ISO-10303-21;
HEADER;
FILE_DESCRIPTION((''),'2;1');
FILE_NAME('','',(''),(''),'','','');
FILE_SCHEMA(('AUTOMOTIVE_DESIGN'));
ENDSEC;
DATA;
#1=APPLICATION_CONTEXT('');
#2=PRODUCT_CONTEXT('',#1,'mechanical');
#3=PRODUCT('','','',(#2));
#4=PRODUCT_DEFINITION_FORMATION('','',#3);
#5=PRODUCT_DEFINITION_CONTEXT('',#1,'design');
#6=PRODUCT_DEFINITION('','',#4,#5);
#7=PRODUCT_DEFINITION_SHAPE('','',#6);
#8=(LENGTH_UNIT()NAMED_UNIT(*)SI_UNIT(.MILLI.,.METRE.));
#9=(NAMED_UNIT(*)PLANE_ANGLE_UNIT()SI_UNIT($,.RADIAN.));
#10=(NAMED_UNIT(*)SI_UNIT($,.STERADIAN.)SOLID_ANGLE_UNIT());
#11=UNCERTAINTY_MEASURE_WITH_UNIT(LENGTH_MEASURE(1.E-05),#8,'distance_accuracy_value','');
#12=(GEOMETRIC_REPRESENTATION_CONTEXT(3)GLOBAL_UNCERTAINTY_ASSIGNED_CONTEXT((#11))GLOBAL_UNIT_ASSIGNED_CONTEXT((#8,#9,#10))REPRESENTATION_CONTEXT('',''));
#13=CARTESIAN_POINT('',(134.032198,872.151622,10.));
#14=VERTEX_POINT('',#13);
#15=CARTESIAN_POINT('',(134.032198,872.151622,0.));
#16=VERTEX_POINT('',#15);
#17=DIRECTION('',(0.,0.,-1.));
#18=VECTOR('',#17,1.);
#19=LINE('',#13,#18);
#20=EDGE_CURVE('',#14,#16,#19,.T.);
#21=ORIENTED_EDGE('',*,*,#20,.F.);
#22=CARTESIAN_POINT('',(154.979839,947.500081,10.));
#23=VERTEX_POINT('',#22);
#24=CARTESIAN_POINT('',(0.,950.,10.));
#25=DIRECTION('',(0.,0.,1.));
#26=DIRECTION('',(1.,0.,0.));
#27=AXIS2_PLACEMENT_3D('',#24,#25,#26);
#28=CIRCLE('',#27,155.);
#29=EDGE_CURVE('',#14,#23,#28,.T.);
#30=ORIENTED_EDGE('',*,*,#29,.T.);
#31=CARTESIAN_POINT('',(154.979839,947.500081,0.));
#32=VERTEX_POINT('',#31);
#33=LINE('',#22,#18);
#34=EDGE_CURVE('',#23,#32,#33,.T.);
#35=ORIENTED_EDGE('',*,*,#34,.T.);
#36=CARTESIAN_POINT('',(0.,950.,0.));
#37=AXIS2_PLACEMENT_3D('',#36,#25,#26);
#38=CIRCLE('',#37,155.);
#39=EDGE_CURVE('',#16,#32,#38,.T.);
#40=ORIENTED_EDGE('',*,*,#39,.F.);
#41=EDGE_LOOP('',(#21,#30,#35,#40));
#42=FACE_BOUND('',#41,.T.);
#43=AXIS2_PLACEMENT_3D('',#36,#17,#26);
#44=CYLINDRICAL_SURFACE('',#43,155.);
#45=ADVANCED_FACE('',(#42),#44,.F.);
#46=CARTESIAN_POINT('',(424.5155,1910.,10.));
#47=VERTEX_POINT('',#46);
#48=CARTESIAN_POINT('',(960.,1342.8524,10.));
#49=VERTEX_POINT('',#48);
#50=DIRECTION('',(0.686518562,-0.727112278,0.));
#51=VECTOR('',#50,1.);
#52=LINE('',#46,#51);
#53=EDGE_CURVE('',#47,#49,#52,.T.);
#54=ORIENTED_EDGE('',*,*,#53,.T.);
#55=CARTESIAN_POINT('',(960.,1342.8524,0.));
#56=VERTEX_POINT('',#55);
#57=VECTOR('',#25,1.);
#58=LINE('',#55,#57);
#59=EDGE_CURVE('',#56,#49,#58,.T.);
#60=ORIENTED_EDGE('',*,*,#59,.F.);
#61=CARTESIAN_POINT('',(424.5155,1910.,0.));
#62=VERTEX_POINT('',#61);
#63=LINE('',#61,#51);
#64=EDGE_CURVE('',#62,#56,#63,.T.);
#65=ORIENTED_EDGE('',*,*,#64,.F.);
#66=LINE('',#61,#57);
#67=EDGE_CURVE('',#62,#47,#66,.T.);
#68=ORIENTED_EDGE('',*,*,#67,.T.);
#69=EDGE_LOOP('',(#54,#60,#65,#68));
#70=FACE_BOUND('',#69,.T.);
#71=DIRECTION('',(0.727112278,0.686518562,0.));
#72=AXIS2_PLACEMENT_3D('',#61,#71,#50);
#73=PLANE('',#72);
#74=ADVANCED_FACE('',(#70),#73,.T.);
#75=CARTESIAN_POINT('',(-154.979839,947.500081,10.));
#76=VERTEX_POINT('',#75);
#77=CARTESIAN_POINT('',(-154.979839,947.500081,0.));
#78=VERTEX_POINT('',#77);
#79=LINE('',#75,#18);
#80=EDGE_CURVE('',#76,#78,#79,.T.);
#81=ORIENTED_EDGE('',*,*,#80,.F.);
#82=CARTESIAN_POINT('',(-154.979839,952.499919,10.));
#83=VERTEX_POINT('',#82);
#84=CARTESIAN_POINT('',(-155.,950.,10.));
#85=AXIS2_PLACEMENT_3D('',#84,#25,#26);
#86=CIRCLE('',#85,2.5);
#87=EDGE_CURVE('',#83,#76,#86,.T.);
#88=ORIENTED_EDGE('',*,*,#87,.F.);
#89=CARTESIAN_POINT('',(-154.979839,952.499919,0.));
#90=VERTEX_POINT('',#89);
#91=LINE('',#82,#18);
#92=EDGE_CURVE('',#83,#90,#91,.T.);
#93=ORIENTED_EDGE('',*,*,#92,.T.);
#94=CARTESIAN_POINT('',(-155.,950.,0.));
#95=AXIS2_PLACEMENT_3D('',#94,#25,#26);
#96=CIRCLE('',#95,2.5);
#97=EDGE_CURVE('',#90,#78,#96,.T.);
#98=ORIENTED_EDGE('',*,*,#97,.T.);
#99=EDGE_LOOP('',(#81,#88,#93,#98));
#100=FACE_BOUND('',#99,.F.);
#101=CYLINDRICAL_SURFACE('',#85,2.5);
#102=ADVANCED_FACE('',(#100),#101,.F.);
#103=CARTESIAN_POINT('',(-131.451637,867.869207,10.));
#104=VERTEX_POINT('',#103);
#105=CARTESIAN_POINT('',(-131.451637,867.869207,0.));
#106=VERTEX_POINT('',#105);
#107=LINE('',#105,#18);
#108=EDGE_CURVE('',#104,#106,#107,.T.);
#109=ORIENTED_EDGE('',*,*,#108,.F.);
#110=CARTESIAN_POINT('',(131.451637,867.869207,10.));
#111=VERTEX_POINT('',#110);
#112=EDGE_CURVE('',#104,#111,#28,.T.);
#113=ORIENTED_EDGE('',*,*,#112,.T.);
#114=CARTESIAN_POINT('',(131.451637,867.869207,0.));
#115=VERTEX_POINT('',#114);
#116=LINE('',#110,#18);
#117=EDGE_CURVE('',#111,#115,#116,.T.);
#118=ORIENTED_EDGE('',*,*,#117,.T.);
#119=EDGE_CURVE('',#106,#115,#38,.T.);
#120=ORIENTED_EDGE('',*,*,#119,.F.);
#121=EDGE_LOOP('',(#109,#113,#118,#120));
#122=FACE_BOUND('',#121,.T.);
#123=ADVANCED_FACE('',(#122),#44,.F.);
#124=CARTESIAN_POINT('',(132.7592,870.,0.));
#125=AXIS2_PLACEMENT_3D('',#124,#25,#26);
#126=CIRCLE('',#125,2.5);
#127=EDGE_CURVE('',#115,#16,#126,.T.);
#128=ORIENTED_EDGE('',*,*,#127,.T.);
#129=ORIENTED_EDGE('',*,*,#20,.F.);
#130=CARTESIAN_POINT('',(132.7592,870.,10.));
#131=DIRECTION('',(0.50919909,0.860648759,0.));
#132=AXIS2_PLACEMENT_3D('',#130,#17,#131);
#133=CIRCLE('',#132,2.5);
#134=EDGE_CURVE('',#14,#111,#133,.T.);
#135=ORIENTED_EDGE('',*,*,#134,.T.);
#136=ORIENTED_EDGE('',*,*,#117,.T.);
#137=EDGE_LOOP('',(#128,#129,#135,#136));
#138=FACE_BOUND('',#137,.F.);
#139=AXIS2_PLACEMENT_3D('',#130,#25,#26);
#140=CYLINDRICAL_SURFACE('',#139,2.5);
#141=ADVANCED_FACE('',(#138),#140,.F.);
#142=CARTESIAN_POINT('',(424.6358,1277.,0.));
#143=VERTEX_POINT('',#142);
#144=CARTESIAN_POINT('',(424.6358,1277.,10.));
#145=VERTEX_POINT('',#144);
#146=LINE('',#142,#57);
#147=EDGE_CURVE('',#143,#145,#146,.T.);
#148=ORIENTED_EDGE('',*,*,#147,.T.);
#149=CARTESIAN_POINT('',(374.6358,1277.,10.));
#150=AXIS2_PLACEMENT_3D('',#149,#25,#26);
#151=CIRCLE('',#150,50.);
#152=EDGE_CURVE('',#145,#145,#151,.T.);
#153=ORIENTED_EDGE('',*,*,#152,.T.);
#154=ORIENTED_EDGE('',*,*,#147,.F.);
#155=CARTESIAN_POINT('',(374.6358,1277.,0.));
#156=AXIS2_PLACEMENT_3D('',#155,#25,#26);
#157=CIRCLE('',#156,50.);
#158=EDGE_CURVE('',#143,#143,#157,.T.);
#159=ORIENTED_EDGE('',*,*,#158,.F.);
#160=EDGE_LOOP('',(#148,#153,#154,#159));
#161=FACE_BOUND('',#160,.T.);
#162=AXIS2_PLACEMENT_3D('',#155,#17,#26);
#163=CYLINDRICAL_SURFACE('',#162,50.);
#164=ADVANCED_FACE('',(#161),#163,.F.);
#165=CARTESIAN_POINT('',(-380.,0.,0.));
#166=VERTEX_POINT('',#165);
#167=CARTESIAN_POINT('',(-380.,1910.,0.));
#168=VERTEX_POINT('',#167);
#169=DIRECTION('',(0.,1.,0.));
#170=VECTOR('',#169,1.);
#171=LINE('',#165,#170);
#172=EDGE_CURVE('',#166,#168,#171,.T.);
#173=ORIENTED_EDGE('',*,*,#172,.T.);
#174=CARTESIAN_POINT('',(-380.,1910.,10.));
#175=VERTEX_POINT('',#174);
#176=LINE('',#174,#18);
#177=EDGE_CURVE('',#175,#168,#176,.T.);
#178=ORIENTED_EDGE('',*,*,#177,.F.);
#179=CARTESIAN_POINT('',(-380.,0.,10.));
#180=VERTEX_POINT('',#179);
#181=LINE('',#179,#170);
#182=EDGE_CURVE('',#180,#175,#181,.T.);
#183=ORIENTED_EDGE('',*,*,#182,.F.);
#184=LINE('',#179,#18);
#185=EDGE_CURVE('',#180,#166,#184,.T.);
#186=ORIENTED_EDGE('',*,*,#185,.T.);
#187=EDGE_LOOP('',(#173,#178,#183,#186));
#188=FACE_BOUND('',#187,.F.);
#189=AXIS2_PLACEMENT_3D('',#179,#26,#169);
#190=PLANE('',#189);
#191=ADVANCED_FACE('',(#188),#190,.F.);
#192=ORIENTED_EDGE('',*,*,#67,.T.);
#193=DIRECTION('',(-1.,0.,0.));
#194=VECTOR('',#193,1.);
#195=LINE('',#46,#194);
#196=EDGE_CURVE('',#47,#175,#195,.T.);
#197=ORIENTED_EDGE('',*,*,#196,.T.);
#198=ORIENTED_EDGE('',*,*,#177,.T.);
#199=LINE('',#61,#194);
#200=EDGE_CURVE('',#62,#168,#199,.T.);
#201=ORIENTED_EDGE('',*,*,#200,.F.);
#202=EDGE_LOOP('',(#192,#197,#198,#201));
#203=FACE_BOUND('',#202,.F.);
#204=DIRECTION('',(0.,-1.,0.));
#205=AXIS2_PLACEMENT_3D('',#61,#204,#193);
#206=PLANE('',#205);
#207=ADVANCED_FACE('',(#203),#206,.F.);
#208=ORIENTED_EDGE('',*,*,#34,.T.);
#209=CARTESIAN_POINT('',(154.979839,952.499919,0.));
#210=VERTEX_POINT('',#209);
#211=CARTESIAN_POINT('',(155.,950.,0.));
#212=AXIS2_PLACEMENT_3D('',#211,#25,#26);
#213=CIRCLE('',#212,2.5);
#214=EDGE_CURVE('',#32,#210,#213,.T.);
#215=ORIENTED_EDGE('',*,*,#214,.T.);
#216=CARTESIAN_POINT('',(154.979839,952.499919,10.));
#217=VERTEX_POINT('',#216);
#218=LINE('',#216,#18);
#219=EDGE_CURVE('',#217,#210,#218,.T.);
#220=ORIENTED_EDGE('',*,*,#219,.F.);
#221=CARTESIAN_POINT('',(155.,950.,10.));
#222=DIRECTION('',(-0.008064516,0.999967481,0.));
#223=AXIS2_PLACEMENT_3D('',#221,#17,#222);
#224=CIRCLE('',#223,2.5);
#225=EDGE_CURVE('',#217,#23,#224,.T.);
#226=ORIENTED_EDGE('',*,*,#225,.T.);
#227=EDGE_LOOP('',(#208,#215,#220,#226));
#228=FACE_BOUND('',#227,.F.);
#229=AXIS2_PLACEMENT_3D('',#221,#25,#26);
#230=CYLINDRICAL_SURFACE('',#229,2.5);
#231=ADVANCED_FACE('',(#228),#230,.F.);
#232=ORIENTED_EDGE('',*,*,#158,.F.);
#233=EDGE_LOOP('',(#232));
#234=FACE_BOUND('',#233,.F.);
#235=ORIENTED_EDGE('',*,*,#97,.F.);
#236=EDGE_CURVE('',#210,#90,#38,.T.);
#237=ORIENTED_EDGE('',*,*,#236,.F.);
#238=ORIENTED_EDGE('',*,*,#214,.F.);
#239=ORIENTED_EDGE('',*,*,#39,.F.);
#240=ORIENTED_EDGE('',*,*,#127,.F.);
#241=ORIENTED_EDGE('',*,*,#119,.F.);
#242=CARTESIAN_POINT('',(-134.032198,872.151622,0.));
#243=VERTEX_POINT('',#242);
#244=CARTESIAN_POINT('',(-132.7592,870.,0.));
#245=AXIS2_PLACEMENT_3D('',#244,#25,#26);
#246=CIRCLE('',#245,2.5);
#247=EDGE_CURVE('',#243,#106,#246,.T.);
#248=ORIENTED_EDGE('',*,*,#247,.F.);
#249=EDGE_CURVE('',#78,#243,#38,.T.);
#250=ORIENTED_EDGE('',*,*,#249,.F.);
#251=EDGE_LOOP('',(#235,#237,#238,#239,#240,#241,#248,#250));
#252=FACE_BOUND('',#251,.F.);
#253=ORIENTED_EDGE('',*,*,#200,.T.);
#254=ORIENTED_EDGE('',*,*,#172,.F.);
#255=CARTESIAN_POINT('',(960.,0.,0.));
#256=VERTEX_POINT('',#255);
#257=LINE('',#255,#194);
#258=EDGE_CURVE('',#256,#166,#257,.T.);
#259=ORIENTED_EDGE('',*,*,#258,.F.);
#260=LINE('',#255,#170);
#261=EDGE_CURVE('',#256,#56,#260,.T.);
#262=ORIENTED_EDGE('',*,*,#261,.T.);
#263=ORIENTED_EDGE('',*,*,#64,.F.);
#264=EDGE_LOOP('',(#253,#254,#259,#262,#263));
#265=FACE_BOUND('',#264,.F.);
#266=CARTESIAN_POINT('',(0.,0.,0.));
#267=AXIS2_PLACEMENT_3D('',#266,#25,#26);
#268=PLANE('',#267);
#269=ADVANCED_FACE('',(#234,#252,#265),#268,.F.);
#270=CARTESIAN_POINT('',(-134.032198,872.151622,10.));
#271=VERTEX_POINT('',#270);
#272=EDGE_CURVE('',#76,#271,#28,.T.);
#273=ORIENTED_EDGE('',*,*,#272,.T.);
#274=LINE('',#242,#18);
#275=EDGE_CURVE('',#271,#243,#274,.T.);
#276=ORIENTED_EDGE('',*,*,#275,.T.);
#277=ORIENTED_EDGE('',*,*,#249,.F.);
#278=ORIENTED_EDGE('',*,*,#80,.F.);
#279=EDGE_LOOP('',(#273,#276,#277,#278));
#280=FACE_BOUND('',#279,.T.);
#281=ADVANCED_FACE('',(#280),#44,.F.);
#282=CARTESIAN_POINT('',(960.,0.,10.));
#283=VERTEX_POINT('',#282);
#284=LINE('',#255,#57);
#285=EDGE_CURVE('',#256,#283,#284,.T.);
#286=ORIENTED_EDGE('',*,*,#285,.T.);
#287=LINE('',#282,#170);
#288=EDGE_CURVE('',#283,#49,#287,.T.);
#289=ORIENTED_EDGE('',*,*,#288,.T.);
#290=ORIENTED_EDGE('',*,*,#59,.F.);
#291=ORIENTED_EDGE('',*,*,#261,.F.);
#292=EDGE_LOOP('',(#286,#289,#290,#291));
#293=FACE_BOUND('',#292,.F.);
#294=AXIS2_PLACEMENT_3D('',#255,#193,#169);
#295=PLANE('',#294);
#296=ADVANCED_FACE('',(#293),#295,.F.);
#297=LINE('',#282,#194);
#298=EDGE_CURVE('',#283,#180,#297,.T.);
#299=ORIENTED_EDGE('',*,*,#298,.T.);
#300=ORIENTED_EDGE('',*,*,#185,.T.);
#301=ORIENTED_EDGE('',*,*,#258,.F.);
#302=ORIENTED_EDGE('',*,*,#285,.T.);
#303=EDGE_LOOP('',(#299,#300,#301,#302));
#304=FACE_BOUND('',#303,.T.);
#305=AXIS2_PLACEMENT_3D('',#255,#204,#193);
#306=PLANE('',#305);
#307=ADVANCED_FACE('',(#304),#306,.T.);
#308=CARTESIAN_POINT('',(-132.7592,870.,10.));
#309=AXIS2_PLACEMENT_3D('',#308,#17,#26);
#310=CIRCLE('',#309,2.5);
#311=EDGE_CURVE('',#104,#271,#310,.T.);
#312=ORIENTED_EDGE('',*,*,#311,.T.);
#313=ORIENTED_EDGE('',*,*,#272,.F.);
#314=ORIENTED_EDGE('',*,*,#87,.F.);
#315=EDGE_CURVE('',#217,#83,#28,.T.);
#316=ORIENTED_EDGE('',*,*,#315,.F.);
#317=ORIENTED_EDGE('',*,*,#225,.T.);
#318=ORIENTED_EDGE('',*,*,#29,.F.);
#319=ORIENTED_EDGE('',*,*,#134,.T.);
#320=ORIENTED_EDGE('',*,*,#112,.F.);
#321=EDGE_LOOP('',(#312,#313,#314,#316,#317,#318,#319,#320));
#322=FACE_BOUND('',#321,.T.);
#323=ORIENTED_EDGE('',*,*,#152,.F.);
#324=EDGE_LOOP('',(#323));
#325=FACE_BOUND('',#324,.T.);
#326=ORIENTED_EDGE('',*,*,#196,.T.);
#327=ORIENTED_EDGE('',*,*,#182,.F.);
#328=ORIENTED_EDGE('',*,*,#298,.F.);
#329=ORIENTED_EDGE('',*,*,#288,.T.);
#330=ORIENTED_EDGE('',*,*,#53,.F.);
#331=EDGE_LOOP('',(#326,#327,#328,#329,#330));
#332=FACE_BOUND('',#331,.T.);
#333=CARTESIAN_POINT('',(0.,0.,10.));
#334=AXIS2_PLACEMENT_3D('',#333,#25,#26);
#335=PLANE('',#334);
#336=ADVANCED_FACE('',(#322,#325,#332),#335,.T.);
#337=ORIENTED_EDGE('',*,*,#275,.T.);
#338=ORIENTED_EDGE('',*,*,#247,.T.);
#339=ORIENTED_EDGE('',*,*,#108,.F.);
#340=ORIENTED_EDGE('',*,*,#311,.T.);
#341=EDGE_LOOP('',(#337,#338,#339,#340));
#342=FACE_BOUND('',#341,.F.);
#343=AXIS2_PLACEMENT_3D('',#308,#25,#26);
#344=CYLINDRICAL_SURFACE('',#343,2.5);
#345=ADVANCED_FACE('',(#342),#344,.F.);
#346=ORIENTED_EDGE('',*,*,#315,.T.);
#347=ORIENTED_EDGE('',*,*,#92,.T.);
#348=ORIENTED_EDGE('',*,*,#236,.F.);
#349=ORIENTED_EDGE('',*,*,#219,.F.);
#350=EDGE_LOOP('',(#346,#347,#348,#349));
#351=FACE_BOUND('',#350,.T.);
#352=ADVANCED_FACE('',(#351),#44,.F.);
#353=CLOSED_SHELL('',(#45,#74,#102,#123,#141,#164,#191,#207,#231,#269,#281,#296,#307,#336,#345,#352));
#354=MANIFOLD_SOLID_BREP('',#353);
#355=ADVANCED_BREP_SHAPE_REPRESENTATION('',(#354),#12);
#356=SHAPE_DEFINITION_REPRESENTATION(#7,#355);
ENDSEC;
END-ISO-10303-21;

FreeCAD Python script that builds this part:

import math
import FreeCAD as App
import Part
import Sketcher
from FreeCAD import Vector

doc = App.newDocument("Part")
params = doc.addObject("Spreadsheet::Sheet", "Params")
for row, (alias, value) in enumerate([
    ("sketch1_diameter", "400 mm"),
    ("sketch1_diameter2", "76 mm"),
    ("sketch1_diameter3", "310 mm"),
    ("sketch1_diameter4", "100 mm"),
    ("sketch1_width", "840 mm"),
    ("pad1_length", "10 mm"),
    ("sketch2_diameter", "5 mm"),
    ("sketch2_radius", "155 mm"),
    ("sketch3_diameter", "400 mm"),
    ("sketch3_diameter2", "76 mm"),
    ("sketch3_width", "800 mm"),
    ("sketch3_height", "1910 mm"),
    ("sketch3_height2", "1150 mm"),
], start=1):
    params.set(f"A{row}", alias)
    params.set(f"B{row}", "=" + value)
    params.setAlias(f"B{row}", alias)

body = doc.addObject("PartDesign::Body", "Body")

# Sketch on XY plane
sketch1 = body.newObject("Sketcher::SketchObject", "Sketch")
sketch1.AttachmentSupport = (doc.getObject("XY_Plane"), [""])
sketch1.MapMode = "FlatFace"
sketch1.addGeometry(Part.LineSegment(Vector(960, 1343, 0), Vector(425, 1910, 0)), False)
sketch1.addGeometry(Part.LineSegment(Vector(425, 1910, 0), Vector(-415, 1910, 0)), False)
sketch1.addGeometry(Part.LineSegment(Vector(-415, 1910, 0), Vector(-1180, 1150, 0)), False)
sketch1.addGeometry(Part.LineSegment(Vector(-1180, 1150, 0), Vector(-1180, 0, 0)), False)
sketch1.addGeometry(Part.LineSegment(Vector(-1180, 0, 0), Vector(960, 0, 0)), False)
sketch1.addGeometry(Part.LineSegment(Vector(960, 0, 0), Vector(960, 1343, 0)), False)
sketch1.addGeometry(Part.Circle(Vector(-960, 220, 0), Vector(0, 0, 1), 200), False)
sketch1.addGeometry(Part.Circle(Vector(-588, 255, 0), Vector(0, 0, 1), 38), False)
sketch1.addGeometry(Part.Circle(Vector(0, 950, 0), Vector(0, 0, 1), 155), False)
sketch1.addGeometry(Part.Circle(Vector(375, 1277, 0), Vector(0, 0, 1), 50), False)
sketch1.addConstraint(Sketcher.Constraint("Coincident", 0, 2, 1, 1))
sketch1.addConstraint(Sketcher.Constraint("Coincident", 1, 2, 2, 1))
sketch1.addConstraint(Sketcher.Constraint("Coincident", 2, 2, 3, 1))
sketch1.addConstraint(Sketcher.Constraint("Coincident", 3, 2, 4, 1))
sketch1.addConstraint(Sketcher.Constraint("Coincident", 4, 2, 5, 1))
sketch1.addConstraint(Sketcher.Constraint("Coincident", 5, 2, 0, 1))
sketch1.addConstraint(Sketcher.Constraint("Horizontal", 1))
sketch1.addConstraint(Sketcher.Constraint("Vertical", 3))
sketch1.addConstraint(Sketcher.Constraint("Horizontal", 4))
sketch1.addConstraint(Sketcher.Constraint("Vertical", 5))
sketch1.addConstraint(Sketcher.Constraint("PointOnObject", 8, 3, -2))
sketch1.addConstraint(Sketcher.Constraint("PointOnObject", 3, 2, -1))
sketch1.addConstraint(Sketcher.Constraint("Diameter", 6, 400.0))
sketch1.addConstraint(Sketcher.Constraint("Diameter", 7, 76.0))
sketch1.addConstraint(Sketcher.Constraint("Diameter", 8, 310.0))
sketch1.addConstraint(Sketcher.Constraint("Diameter", 9, 100.0))
sketch1.addConstraint(Sketcher.Constraint("DistanceX", 1, 2, 1, 1, 840.0))
sketch1.addConstraint(Sketcher.Constraint("DistanceX", 4, 1, 4, 2, 2140.0))
sketch1.addConstraint(Sketcher.Constraint("DistanceY", 3, 2, 3, 1, 1150.0))
sketch1.addConstraint(Sketcher.Constraint("Distance", 0, 780.0))
sketch1.addConstraint(Sketcher.Constraint("Distance", 2, 1078.0))
sketch1.addConstraint(Sketcher.Constraint("DistanceY", -1, 1, 6, 3, 220.0))
sketch1.addConstraint(Sketcher.Constraint("DistanceY", -1, 1, 7, 3, 255.0))
sketch1.addConstraint(Sketcher.Constraint("DistanceY", -1, 1, 8, 3, 950.0))
sketch1.addConstraint(Sketcher.Constraint("DistanceY", -1, 1, 9, 3, 1277.0))
sketch1.addConstraint(Sketcher.Constraint("DistanceY", -1, 1, 0, 2, 1910.0))
sketch1.addConstraint(Sketcher.Constraint("DistanceX", 2, 2, -1, 1, 1180.0))
sketch1.addConstraint(Sketcher.Constraint("DistanceX", 6, 3, 7, 3, 372.0))
sketch1.addConstraint(Sketcher.Constraint("DistanceX", 2, 2, 6, 3, 220.0))
sketch1.addConstraint(Sketcher.Constraint("DistanceX", 2, 2, 9, 3, 1554.6358))
sketch1.setExpression("Constraints[12]", "Params.sketch1_diameter")
sketch1.setExpression("Constraints[13]", "Params.sketch1_diameter2")
sketch1.setExpression("Constraints[14]", "Params.sketch1_diameter3")
sketch1.setExpression("Constraints[15]", "Params.sketch1_diameter4")
sketch1.setExpression("Constraints[16]", "Params.sketch1_width")
pad1 = body.newObject("PartDesign::Pad", "Pad")
pad1.Profile = sketch1
pad1.setExpression("Length", "Params.pad1_length")

# Sketch on XY plane
sketch2 = body.newObject("Sketcher::SketchObject", "Sketch001")
sketch2.AttachmentSupport = (doc.getObject("XY_Plane"), [""])
sketch2.MapMode = "FlatFace"
sketch2.AttachmentOffset = App.Placement(Vector(0, 0, 10), App.Rotation())
sketch2.addGeometry(Part.ArcOfCircle(Part.Circle(Vector(0, 950, 0), Vector(0, 0, 1), 155), math.radians(-0.92), math.radians(0.92)), False)
sketch2.addGeometry(Part.ArcOfCircle(Part.Circle(Vector(155, 950, 0), Vector(0, 0, 1), 2.5), math.radians(-90), math.radians(90)), False)
sketch2.addGeometry(Part.ArcOfCircle(Part.Circle(Vector(0, 950, 0), Vector(0, 0, 1), 155), math.radians(179.08), math.radians(180.92)), False)
sketch2.addGeometry(Part.ArcOfCircle(Part.Circle(Vector(-155, 950, 0), Vector(0, 0, 1), 2.5), math.radians(90), math.radians(270)), False)
sketch2.addGeometry(Part.ArcOfCircle(Part.Circle(Vector(132.8, 870, 0), Vector(0, 0, 1), 2.5), math.radians(-122), math.radians(59)), False)
sketch2.addGeometry(Part.ArcOfCircle(Part.Circle(Vector(0, 950, 0), Vector(0, 0, 1), 155), math.radians(-32), math.radians(-30.15)), False)
sketch2.addGeometry(Part.Circle(Vector(-132.8, 870, 0), Vector(0, 0, 1), 2.5), False)
sketch2.addConstraint(Sketcher.Constraint("Coincident", 0, 1, 1, 1))
sketch2.addConstraint(Sketcher.Constraint("Coincident", 1, 2, 0, 2))
sketch2.addConstraint(Sketcher.Constraint("Coincident", 2, 1, 3, 1))
sketch2.addConstraint(Sketcher.Constraint("Coincident", 3, 2, 2, 2))
sketch2.addConstraint(Sketcher.Constraint("Coincident", 4, 1, 5, 1))
sketch2.addConstraint(Sketcher.Constraint("Coincident", 5, 2, 4, 2))
sketch2.addConstraint(Sketcher.Constraint("Coincident", 2, 3, 0, 3))
sketch2.addConstraint(Sketcher.Constraint("Coincident", 5, 3, 0, 3))
sketch2.addConstraint(Sketcher.Constraint("Equal", 0, 2))
sketch2.addConstraint(Sketcher.Constraint("Equal", 1, 3))
sketch2.addConstraint(Sketcher.Constraint("Equal", 3, 4))
sketch2.addConstraint(Sketcher.Constraint("Equal", 2, 5))
sketch2.addConstraint(Sketcher.Constraint("Equal", 4, 6))
sketch2.addConstraint(Sketcher.Constraint("Symmetric", 1, 3, 3, 3, -2))
sketch2.addConstraint(Sketcher.Constraint("Symmetric", 4, 3, 6, 3, -2))
sketch2.addConstraint(Sketcher.Constraint("PointOnObject", 0, 3, -2))
sketch2.addConstraint(Sketcher.Constraint("Horizontal", 0, 3, 1, 3))
sketch2.addConstraint(Sketcher.Constraint("Diameter", 6, 5.0))
sketch2.addConstraint(Sketcher.Constraint("Radius", 0, 155.0))
sketch2.addConstraint(Sketcher.Constraint("DistanceY", 4, 3, 1, 3, 80.0))
sketch2.addConstraint(Sketcher.Constraint("DistanceY", -1, 1, 0, 3, 950.0))
sketch2.addConstraint(Sketcher.Constraint("DistanceX", -1, 1, 1, 3, 155.0))
sketch2.addConstraint(Sketcher.Constraint("DistanceX", 4, 3, 5, 2, 1.273))
sketch2.setExpression("Constraints[17]", "Params.sketch2_diameter")
sketch2.setExpression("Constraints[18]", "Params.sketch2_radius")
pocket1 = body.newObject("PartDesign::Pocket", "Pocket")
pocket1.Profile = sketch2
pocket1.Type = "ThroughAll"

# Sketch on XY plane
sketch3 = body.newObject("Sketcher::SketchObject", "Sketch002")
sketch3.AttachmentSupport = (doc.getObject("XY_Plane"), [""])
sketch3.MapMode = "FlatFace"
sketch3.AttachmentOffset = App.Placement(Vector(0, 0, 10), App.Rotation())
sketch3.addGeometry(Part.LineSegment(Vector(-380, 0, 0), Vector(-380, 1910, 0)), False)
sketch3.addGeometry(Part.LineSegment(Vector(-380, 1910, 0), Vector(-415, 1910, 0)), False)
sketch3.addGeometry(Part.LineSegment(Vector(-415, 1910, 0), Vector(-1180, 1150, 0)), False)
sketch3.addGeometry(Part.LineSegment(Vector(-1180, 1150, 0), Vector(-1180, 0, 0)), False)
sketch3.addGeometry(Part.LineSegment(Vector(-1180, 0, 0), Vector(-380, 0, 0)), False)
sketch3.addGeometry(Part.Circle(Vector(-960, 220, 0), Vector(0, 0, 1), 200), False)
sketch3.addGeometry(Part.Circle(Vector(-588, 255, 0), Vector(0, 0, 1), 38), False)
sketch3.addConstraint(Sketcher.Constraint("Coincident", 0, 2, 1, 1))
sketch3.addConstraint(Sketcher.Constraint("Coincident", 1, 2, 2, 1))
sketch3.addConstraint(Sketcher.Constraint("Coincident", 2, 2, 3, 1))
sketch3.addConstraint(Sketcher.Constraint("Coincident", 3, 2, 4, 1))
sketch3.addConstraint(Sketcher.Constraint("Coincident", 4, 2, 0, 1))
sketch3.addConstraint(Sketcher.Constraint("Vertical", 0))
sketch3.addConstraint(Sketcher.Constraint("Horizontal", 1))
sketch3.addConstraint(Sketcher.Constraint("Vertical", 3))
sketch3.addConstraint(Sketcher.Constraint("Horizontal", 4))
sketch3.addConstraint(Sketcher.Constraint("PointOnObject", 3, 2, -1))
sketch3.addConstraint(Sketcher.Constraint("Diameter", 5, 400.0))
sketch3.addConstraint(Sketcher.Constraint("Diameter", 6, 76.0))
sketch3.addConstraint(Sketcher.Constraint("DistanceX", 4, 1, 4, 2, 800.0))
sketch3.addConstraint(Sketcher.Constraint("DistanceY", 0, 1, 0, 2, 1910.0))
sketch3.addConstraint(Sketcher.Constraint("DistanceY", 3, 2, 3, 1, 1150.0))
sketch3.addConstraint(Sketcher.Constraint("Distance", 2, 1078.0))
sketch3.addConstraint(Sketcher.Constraint("DistanceX", 5, 3, -1, 1, 960.0))
sketch3.addConstraint(Sketcher.Constraint("DistanceY", -1, 1, 5, 3, 220.0))
sketch3.addConstraint(Sketcher.Constraint("DistanceX", 6, 3, -1, 1, 588.0))
sketch3.addConstraint(Sketcher.Constraint("DistanceY", -1, 1, 6, 3, 255.0))
sketch3.addConstraint(Sketcher.Constraint("DistanceX", 0, 2, -1, 1, 380.0))
sketch3.setExpression("Constraints[10]", "Params.sketch3_diameter")
sketch3.setExpression("Constraints[11]", "Params.sketch3_diameter2")
sketch3.setExpression("Constraints[12]", "Params.sketch3_width")
sketch3.setExpression("Constraints[13]", "Params.sketch3_height")
sketch3.setExpression("Constraints[14]", "Params.sketch3_height2")
pocket2 = body.newObject("PartDesign::Pocket", "Pocket001")
pocket2.Profile = sketch3
pocket2.Type = "ThroughAll"

doc.recompute()
